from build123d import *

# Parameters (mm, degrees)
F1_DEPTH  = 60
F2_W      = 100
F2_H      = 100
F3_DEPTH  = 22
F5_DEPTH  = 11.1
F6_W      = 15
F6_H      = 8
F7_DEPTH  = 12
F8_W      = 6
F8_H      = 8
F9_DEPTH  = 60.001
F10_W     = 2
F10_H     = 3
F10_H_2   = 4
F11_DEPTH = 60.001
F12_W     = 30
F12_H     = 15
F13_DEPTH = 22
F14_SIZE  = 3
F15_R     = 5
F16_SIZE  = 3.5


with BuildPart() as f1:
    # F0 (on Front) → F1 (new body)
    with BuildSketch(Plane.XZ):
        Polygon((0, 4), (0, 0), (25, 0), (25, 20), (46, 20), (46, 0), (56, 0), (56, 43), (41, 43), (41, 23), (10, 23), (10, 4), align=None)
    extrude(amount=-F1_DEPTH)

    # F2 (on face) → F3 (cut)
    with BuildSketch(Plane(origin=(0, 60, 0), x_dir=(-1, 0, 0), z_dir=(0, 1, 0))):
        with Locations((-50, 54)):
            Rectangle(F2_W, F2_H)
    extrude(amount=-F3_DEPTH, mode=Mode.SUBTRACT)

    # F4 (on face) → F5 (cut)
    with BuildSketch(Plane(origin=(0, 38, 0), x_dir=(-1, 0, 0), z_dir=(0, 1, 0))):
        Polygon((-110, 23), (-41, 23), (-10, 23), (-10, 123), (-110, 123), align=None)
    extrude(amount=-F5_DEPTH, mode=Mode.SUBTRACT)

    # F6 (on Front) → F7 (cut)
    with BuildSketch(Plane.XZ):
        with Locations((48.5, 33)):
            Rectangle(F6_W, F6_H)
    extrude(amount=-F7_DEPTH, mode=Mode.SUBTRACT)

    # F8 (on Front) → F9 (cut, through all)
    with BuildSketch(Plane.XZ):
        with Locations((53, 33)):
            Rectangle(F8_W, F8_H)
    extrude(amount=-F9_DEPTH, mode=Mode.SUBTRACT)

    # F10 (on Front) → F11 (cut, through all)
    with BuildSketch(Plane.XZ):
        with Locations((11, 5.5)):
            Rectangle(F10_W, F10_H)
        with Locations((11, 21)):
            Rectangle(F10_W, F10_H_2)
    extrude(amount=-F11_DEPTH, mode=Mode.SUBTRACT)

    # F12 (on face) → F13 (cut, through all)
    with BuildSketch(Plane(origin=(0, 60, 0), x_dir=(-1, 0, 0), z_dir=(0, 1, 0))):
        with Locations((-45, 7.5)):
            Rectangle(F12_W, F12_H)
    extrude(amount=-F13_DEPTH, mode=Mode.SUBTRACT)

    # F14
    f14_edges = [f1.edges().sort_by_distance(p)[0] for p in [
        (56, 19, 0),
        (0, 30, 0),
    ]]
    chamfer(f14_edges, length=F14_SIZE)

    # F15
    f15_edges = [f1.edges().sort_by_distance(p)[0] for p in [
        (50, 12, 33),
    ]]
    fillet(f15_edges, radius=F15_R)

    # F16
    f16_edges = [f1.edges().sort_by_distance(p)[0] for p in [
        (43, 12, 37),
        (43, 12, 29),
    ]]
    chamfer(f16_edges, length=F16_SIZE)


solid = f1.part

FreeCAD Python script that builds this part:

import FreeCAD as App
import Part
import Sketcher


def edges_at(feature, points):
    """Names of the edges that pass closest to the given points."""
    edges = feature.Shape.Edges
    near = lambda p: min(range(len(edges)), key=lambda i: edges[i].distToShape(Part.Vertex(*p))[0])
    return sorted({f"Edge{near(p) + 1}" for p in points})


def add_polygon(sketch, points):
    """Adds a closed chain of lines whose ends are joined by coincident constraints."""
    first, n = sketch.GeometryCount, len(points)
    for a, b in zip(points, points[1:] + points[:1]):
        sketch.addGeometry(Part.LineSegment(App.Vector(*a, 0), App.Vector(*b, 0)), False)
    for i in range(n):
        sketch.addConstraint(Sketcher.Constraint("Coincident", first + i, 2, first + (i + 1) % n, 1))

doc = App.newDocument("Part")
body = doc.addObject("PartDesign::Body", "Body")

# Sketch on XZ plane
sketch1 = doc.addObject("Sketcher::SketchObject", "Sketch")
body.addObject(sketch1)
sketch1.AttachmentSupport = (doc.XZ_Plane, [""])
sketch1.MapMode = "FlatFace"
add_polygon(sketch1, [(0, 4), (0, 0), (25, 0), (25, 20), (46, 20), (46, 0), (56, 0), (56, 43), (41, 43), (41, 23), (10, 23), (10, 4)])  # lines 0-11
sketch1.addConstraint([
    Sketcher.Constraint("Vertical", 0),
    Sketcher.Constraint("Horizontal", 1),
    Sketcher.Constraint("Vertical", 2),
    Sketcher.Constraint("Horizontal", 3),
    Sketcher.Constraint("Vertical", 4),
    Sketcher.Constraint("Horizontal", 5),
    Sketcher.Constraint("Vertical", 6),
    Sketcher.Constraint("Horizontal", 7),
    Sketcher.Constraint("Vertical", 8),
    Sketcher.Constraint("Horizontal", 9),
    Sketcher.Constraint("Vertical", 10),
    Sketcher.Constraint("Horizontal", 11),
    Sketcher.Constraint("Coincident", 0, 2, -1, 1),
    Sketcher.Constraint("PointOnObject", 4, 2, -1),
    Sketcher.Constraint("Equal", 5, 11),
    Sketcher.Constraint("Equal", 4, 8),
    Sketcher.Constraint("DistanceX", 1, 1, 1, 2, 25.0),
    Sketcher.Constraint("DistanceX", 3, 1, 3, 2, 21.0),
    Sketcher.Constraint("DistanceX", 5, 1, 5, 2, 10.0),
    Sketcher.Constraint("DistanceX", 7, 2, 7, 1, 15.0),
    Sketcher.Constraint("DistanceY", 0, 2, 0, 1, 4.0),
    Sketcher.Constraint("DistanceY", 2, 1, 2, 2, 20.0),
    Sketcher.Constraint("DistanceY", 6, 1, 6, 2, 43.0),
])
pad1 = doc.addObject("PartDesign::Pad", "Pad")
body.addObject(pad1)
pad1.Profile = sketch1
pad1.Length = 60
pad1.Reversed = True

# Sketch on XZ plane
sketch2 = doc.addObject("Sketcher::SketchObject", "Sketch001")
body.addObject(sketch2)
sketch2.AttachmentSupport = (doc.XZ_Plane, [""])
sketch2.MapMode = "FlatFace"
sketch2.AttachmentOffset = App.Placement(App.Vector(0, 0, -60), App.Rotation())
add_polygon(sketch2, [(100, 104), (100, 4), (0, 4), (0, 104)])  # lines 0-3
sketch2.addConstraint([
    Sketcher.Constraint("Vertical", 0),
    Sketcher.Constraint("Horizontal", 1),
    Sketcher.Constraint("Vertical", 2),
    Sketcher.Constraint("Horizontal", 3),
    Sketcher.Constraint("PointOnObject", 1, 2, -2),
    Sketcher.Constraint("Equal", 3, 0),
    Sketcher.Constraint("DistanceX", 1, 2, 1, 1, 100.0),
    Sketcher.Constraint("DistanceY", -1, 1, 0, 2, 4.0),
])
pocket1 = doc.addObject("PartDesign::Pocket", "Pocket")
body.addObject(pocket1)
pocket1.Profile = sketch2
pocket1.Length = 22
pocket1.Reversed = True

# Sketch on XZ plane
sketch3 = doc.addObject("Sketcher::SketchObject", "Sketch002")
body.addObject(sketch3)
sketch3.AttachmentSupport = (doc.XZ_Plane, [""])
sketch3.MapMode = "FlatFace"
sketch3.AttachmentOffset = App.Placement(App.Vector(0, 0, -38), App.Rotation())
add_polygon(sketch3, [(110, 23), (10, 23), (10, 123), (110, 123)])  # lines 0-3
sketch3.addConstraint([
    Sketcher.Constraint("Horizontal", 0),
    Sketcher.Constraint("Vertical", 1),
    Sketcher.Constraint("Horizontal", 2),
    Sketcher.Constraint("Vertical", 3),
    Sketcher.Constraint("Equal", 2, 1),
    Sketcher.Constraint("DistanceX", 0, 2, 0, 1, 100.0),
    Sketcher.Constraint("DistanceX", -1, 1, 0, 2, 10.0),
    Sketcher.Constraint("DistanceY", -1, 1, 0, 2, 23.0),
])
pocket2 = doc.addObject("PartDesign::Pocket", "Pocket001")
body.addObject(pocket2)
pocket2.Profile = sketch3
pocket2.Length = 11.1
pocket2.Reversed = True

# Sketch on XZ plane
sketch4 = doc.addObject("Sketcher::SketchObject", "Sketch003")
body.addObject(sketch4)
sketch4.AttachmentSupport = (doc.XZ_Plane, [""])
sketch4.MapMode = "FlatFace"
add_polygon(sketch4, [(41, 37), (41, 29), (56, 29), (56, 37)])  # lines 0-3
sketch4.addConstraint([
    Sketcher.Constraint("Vertical", 0),
    Sketcher.Constraint("Horizontal", 1),
    Sketcher.Constraint("Vertical", 2),
    Sketcher.Constraint("Horizontal", 3),
    Sketcher.Constraint("DistanceX", 1, 1, 1, 2, 15.0),
    Sketcher.Constraint("DistanceY", 0, 2, 0, 1, 8.0),
    Sketcher.Constraint("DistanceX", -1, 1, 0, 2, 41.0),
    Sketcher.Constraint("DistanceY", -1, 1, 0, 2, 29.0),
])
pocket3 = doc.addObject("PartDesign::Pocket", "Pocket002")
body.addObject(pocket3)
pocket3.Profile = sketch4
pocket3.Length = 12

# Sketch on XZ plane
sketch5 = doc.addObject("Sketcher::SketchObject", "Sketch004")
body.addObject(sketch5)
sketch5.AttachmentSupport = (doc.XZ_Plane, [""])
sketch5.MapMode = "FlatFace"
add_polygon(sketch5, [(50, 37), (50, 29), (56, 29), (56, 37)])  # lines 0-3
sketch5.addConstraint([
    Sketcher.Constraint("Vertical", 0),
    Sketcher.Constraint("Horizontal", 1),
    Sketcher.Constraint("Vertical", 2),
    Sketcher.Constraint("Horizontal", 3),
    Sketcher.Constraint("DistanceX", 1, 1, 1, 2, 6.0),
    Sketcher.Constraint("DistanceY", 0, 2, 0, 1, 8.0),
    Sketcher.Constraint("DistanceX", -1, 1, 0, 2, 50.0),
    Sketcher.Constraint("DistanceY", -1, 1, 0, 2, 29.0),
])
pocket4 = doc.addObject("PartDesign::Pocket", "Pocket003")
body.addObject(pocket4)
pocket4.Profile = sketch5
pocket4.Type = "ThroughAll"

# Sketch on XZ plane
sketch6 = doc.addObject("Sketcher::SketchObject", "Sketch005")
body.addObject(sketch6)
sketch6.AttachmentSupport = (doc.XZ_Plane, [""])
sketch6.MapMode = "FlatFace"
add_polygon(sketch6, [(10, 7), (10, 4), (12, 4), (12, 7)])  # lines 0-3
add_polygon(sketch6, [(10, 23), (10, 19), (12, 19), (12, 23)])  # lines 4-7
sketch6.addConstraint([
    Sketcher.Constraint("Vertical", 0),
    Sketcher.Constraint("Horizontal", 1),
    Sketcher.Constraint("Vertical", 2),
    Sketcher.Constraint("Horizontal", 3),
    Sketcher.Constraint("Vertical", 4),
    Sketcher.Constraint("Horizontal", 5),
    Sketcher.Constraint("Vertical", 6),
    Sketcher.Constraint("Horizontal", 7),
    Sketcher.Constraint("Vertical", 3, 2, 4, 2),
    Sketcher.Constraint("Vertical", 2, 2, 5, 2),
    Sketcher.Constraint("DistanceX", 1, 1, 1, 2, 2.0),
    Sketcher.Constraint("DistanceY", 0, 2, 0, 1, 3.0),
    Sketcher.Constraint("DistanceY", 4, 2, 4, 1, 4.0),
    Sketcher.Constraint("DistanceX", -1, 1, 0, 2, 10.0),
    Sketcher.Constraint("DistanceY", -1, 1, 0, 2, 4.0),
    Sketcher.Constraint("DistanceY", -1, 1, 4, 2, 19.0),
])
pocket5 = doc.addObject("PartDesign::Pocket", "Pocket004")
body.addObject(pocket5)
pocket5.Profile = sketch6
pocket5.Type = "ThroughAll"

# Sketch on XZ plane
sketch7 = doc.addObject("Sketcher::SketchObject", "Sketch006")
body.addObject(sketch7)
sketch7.AttachmentSupport = (doc.XZ_Plane, [""])
sketch7.MapMode = "FlatFace"
sketch7.AttachmentOffset = App.Placement(App.Vector(0, 0, -60), App.Rotation())
add_polygon(sketch7, [(60, 15), (60, 0), (30, 0), (30, 15)])  # lines 0-3
sketch7.addConstraint([
    Sketcher.Constraint("Vertical", 0),
    Sketcher.Constraint("Horizontal", 1),
    Sketcher.Constraint("Vertical", 2),
    Sketcher.Constraint("Horizontal", 3),
    Sketcher.Constraint("PointOnObject", 0, 2, -1),
    Sketcher.Constraint("DistanceX", 1, 2, 1, 1, 30.0),
    Sketcher.Constraint("DistanceY", 0, 2, 0, 1, 15.0),
    Sketcher.Constraint("DistanceX", -1, 1, 0, 2, 60.0),
])
pocket6 = doc.addObject("PartDesign::Pocket", "Pocket005")
body.addObject(pocket6)
pocket6.Profile = sketch7
pocket6.Length = 22
pocket6.Reversed = True
doc.recompute()

chamfer = doc.addObject("PartDesign::Chamfer", "Chamfer")
body.addObject(chamfer)
chamfer.Base = (pocket6, edges_at(pocket6, [(56, 19, 0), (0, 30, 0)]))
chamfer.Size = 3
doc.recompute()

fillet = doc.addObject("PartDesign::Fillet", "Fillet")
body.addObject(fillet)
fillet.Base = (chamfer, edges_at(chamfer, [(50, 12, 33)]))
fillet.Radius = 5
doc.recompute()

chamfer2 = doc.addObject("PartDesign::Chamfer", "Chamfer001")
body.addObject(chamfer2)
chamfer2.Base = (fillet, edges_at(fillet, [(43, 12, 37), (43, 12, 29)]))
chamfer2.Size = 3.5

doc.recompute()
